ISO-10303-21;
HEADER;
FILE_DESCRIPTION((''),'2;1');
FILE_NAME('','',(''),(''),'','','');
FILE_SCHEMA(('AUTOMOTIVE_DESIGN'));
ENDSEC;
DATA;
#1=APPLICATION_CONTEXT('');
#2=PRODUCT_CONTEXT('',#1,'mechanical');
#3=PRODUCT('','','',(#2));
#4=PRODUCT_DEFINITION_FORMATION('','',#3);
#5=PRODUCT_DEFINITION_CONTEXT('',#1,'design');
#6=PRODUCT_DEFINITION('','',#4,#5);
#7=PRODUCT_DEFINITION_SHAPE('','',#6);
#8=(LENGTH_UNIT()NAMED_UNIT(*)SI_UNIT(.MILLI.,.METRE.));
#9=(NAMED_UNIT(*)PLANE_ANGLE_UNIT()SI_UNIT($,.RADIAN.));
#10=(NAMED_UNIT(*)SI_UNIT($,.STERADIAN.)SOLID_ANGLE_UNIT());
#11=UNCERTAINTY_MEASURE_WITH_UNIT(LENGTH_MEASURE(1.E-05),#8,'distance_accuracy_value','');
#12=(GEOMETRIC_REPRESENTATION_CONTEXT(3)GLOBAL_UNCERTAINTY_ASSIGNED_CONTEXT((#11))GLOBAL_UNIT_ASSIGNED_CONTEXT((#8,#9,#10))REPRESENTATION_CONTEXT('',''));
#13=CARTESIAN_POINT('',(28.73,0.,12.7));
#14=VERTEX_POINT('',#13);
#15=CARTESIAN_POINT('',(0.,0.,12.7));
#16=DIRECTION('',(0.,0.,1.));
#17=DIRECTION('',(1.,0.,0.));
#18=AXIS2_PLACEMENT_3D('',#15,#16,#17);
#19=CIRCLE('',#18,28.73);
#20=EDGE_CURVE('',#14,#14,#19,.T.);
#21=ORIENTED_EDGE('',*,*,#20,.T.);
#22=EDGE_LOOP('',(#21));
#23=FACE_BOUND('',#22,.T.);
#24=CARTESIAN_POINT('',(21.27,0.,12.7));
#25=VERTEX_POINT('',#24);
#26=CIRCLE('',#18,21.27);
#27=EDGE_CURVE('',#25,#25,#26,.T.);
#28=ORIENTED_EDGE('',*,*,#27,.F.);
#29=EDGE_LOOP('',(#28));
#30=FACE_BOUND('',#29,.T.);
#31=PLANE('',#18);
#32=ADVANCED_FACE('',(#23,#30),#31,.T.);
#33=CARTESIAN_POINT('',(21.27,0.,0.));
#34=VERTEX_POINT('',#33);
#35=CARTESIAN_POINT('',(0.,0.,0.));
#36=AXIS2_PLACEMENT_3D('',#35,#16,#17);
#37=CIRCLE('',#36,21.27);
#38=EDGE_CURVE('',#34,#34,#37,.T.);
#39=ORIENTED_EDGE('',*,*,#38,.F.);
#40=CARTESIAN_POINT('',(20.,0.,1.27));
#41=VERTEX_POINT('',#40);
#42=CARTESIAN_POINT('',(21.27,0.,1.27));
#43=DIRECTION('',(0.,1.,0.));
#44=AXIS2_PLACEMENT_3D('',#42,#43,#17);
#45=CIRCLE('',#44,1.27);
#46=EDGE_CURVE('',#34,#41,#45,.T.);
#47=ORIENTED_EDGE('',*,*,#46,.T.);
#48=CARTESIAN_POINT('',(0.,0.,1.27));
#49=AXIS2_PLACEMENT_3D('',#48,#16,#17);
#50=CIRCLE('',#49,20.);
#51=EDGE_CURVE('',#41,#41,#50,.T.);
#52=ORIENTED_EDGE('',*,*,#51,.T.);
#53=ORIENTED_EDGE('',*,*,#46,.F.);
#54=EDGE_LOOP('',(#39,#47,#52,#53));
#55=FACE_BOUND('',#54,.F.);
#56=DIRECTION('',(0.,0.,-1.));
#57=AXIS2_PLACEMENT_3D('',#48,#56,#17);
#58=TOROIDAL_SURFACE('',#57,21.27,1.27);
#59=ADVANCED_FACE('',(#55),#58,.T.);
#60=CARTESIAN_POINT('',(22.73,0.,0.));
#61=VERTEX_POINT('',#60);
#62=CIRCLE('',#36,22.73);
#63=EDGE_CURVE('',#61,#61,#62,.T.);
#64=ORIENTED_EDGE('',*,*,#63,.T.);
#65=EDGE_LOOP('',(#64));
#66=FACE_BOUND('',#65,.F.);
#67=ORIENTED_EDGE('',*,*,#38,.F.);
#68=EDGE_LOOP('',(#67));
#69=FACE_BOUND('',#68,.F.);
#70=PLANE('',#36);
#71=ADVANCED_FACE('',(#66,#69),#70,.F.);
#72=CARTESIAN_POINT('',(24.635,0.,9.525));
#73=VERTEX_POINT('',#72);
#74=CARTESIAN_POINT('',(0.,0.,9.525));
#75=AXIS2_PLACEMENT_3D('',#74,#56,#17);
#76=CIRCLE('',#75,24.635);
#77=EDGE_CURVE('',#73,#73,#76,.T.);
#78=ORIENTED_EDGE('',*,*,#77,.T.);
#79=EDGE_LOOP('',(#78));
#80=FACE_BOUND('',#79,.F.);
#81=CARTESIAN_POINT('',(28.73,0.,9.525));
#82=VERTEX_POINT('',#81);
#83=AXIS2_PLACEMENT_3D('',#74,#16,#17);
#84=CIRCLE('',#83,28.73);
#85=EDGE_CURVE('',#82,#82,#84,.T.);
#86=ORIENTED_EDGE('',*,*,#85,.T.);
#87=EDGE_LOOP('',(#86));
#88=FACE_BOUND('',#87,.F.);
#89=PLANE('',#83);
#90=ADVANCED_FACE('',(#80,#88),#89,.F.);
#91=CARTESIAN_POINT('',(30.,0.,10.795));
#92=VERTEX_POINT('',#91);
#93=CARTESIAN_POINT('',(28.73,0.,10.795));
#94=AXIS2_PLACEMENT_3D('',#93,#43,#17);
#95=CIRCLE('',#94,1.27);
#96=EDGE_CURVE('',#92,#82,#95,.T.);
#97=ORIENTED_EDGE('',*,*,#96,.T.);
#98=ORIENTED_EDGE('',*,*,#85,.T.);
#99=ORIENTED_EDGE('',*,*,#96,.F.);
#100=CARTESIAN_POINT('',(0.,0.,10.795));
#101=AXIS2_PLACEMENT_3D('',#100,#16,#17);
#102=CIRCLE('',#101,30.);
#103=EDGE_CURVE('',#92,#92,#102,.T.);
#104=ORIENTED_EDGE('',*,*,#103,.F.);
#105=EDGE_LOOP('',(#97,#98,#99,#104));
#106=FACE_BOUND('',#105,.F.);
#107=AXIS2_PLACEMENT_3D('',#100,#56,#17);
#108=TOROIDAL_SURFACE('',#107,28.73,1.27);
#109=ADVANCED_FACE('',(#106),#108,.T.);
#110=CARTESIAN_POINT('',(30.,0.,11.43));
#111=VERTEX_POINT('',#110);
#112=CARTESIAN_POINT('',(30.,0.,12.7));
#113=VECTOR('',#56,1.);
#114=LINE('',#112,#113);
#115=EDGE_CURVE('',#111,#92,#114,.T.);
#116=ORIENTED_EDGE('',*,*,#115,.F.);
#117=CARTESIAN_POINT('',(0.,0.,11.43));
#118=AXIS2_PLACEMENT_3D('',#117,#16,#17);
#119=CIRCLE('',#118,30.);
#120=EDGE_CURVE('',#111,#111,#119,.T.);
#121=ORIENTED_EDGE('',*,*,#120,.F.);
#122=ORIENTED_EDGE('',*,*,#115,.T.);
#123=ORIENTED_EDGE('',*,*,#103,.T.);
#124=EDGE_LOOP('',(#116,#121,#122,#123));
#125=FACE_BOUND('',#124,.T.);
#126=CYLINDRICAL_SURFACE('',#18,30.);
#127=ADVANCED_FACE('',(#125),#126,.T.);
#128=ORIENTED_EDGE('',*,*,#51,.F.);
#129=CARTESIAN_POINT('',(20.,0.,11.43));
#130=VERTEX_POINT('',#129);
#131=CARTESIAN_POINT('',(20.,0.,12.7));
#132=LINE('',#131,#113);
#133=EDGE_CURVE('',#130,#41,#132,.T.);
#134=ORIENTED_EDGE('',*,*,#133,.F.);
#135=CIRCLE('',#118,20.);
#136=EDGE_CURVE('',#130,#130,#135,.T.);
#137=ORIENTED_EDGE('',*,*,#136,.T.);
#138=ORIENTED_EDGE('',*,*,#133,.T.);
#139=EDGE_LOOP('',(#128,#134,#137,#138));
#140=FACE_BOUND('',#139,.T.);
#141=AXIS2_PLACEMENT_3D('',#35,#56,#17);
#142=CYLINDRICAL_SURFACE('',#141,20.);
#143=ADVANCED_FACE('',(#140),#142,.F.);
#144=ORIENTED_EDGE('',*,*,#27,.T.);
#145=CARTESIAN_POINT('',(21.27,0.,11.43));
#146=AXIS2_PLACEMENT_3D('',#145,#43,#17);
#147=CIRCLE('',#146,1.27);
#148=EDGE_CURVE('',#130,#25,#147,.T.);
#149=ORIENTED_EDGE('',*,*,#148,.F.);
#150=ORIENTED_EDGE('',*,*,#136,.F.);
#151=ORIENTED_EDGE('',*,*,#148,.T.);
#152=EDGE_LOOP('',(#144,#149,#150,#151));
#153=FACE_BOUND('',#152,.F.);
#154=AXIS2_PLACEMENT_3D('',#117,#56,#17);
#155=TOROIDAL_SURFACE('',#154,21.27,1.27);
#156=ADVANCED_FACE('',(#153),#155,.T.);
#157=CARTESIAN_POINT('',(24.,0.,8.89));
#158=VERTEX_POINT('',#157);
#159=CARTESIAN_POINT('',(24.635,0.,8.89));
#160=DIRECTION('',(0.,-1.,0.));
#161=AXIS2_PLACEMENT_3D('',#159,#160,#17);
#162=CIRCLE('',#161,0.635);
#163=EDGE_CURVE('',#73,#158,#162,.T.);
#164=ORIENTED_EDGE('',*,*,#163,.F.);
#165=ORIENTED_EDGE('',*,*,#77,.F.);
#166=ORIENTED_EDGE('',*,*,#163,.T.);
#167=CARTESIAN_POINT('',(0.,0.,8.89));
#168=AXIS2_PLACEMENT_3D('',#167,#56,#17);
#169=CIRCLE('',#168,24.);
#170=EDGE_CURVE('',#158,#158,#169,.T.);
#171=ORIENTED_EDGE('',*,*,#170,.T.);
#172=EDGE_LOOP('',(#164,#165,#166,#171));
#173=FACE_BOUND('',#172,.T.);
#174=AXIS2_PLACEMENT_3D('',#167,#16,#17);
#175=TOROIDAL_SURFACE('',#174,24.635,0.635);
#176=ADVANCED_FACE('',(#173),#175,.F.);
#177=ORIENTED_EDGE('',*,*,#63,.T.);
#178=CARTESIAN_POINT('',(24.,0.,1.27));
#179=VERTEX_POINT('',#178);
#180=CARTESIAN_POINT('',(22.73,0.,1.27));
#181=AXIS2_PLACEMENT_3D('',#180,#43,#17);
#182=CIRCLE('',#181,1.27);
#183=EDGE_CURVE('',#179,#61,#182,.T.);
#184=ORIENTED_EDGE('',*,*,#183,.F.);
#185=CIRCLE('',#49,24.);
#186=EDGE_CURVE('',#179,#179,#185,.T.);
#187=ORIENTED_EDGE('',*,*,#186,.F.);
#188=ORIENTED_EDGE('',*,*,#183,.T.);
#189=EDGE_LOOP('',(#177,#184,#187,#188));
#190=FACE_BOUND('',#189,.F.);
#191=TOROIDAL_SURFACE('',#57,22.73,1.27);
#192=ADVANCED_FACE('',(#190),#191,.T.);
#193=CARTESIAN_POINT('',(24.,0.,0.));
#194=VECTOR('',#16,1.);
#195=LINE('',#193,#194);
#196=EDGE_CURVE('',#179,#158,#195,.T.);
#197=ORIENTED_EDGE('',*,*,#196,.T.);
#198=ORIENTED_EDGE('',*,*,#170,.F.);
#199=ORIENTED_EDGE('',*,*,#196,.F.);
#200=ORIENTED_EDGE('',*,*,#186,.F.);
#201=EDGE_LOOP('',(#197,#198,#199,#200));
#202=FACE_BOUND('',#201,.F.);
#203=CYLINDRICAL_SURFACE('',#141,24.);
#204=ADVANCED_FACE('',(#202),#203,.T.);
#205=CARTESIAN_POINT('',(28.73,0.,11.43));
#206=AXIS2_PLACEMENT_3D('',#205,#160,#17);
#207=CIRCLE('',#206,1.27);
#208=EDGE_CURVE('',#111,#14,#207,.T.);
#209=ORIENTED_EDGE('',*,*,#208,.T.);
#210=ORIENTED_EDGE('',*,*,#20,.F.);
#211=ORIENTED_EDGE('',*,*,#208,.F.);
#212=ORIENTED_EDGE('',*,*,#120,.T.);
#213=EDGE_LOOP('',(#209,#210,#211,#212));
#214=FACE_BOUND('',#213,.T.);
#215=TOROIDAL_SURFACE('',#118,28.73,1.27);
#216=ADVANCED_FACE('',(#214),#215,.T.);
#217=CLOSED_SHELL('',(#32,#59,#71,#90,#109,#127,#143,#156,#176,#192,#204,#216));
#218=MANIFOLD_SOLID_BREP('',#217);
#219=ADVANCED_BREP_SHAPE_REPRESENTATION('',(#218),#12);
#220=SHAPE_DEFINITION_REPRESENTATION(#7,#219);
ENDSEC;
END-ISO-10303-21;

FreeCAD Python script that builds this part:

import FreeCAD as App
import Part
import Sketcher
from FreeCAD import Vector
Q = App.Units.Quantity


def edges_at(feature, points):
    """Names of the edges that pass closest to the given points."""
    edges = feature.Shape.Edges
    near = lambda p: min(range(len(edges)), key=lambda i: edges[i].distToShape(Part.Vertex(*p))[0])
    return sorted({f"Edge{near(p) + 1}" for p in points})

doc = App.newDocument("Part")
body = doc.addObject("PartDesign::Body", "Body")

# Sketch on XY plane
sketch1 = body.newObject("Sketcher::SketchObject", "Sketch")
sketch1.AttachmentSupport = (doc.getObject("XY_Plane"), [""])
sketch1.MapMode = "FlatFace"
sketch1.addGeometry([
    Part.Circle(Vector(0, 0, 0), Vector(0, 0, 1), 24),
    Part.Circle(Vector(0, 0, 0), Vector(0, 0, 1), 20),
], False)
sketch1.addConstraint([
    Sketcher.Constraint("Coincident", 0, 3, -1, 1),
    Sketcher.Constraint("Coincident", 1, 3, -1, 1),
    Sketcher.Constraint("Diameter", 0, 48.0),
    Sketcher.Constraint("Diameter", 1, 40.0),
])
pad1 = body.newObject("PartDesign::Pad", "Pad")
pad1.Profile = sketch1
pad1.Length = Q("0.5 in")

# Sketch on XY plane
sketch2 = body.newObject("Sketcher::SketchObject", "Sketch001")
sketch2.AttachmentSupport = (doc.getObject("XY_Plane"), [""])
sketch2.MapMode = "FlatFace"
sketch2.AttachmentOffset = App.Placement(Vector(0, 0, 0.5 * 25.4), App.Rotation())
sketch2.addGeometry([
    Part.Circle(Vector(0, 0, 0), Vector(0, 0, 1), 30),
    Part.Circle(Vector(0, 0, 0), Vector(0, 0, 1), 20),
], False)
sketch2.addConstraint([
    Sketcher.Constraint("Coincident", 0, 3, -1, 1),
    Sketcher.Constraint("Coincident", 1, 3, -1, 1),
    Sketcher.Constraint("Diameter", 0, 60.0),
    Sketcher.Constraint("Diameter", 1, 40.0),
])
pad2 = body.newObject("PartDesign::Pad", "Pad001")
pad2.Profile = sketch2
pad2.Length = Q("0.125 in")
pad2.Reversed = True
doc.recompute()

fillet = body.newObject("PartDesign::Fillet", "Fillet")
fillet.Base = (pad2, edges_at(pad2, [
    (-20, 0, 12.7),
    (-20, 0, 0),
    (-30, 0, 12.7),
    (-30, 0, 9.525),
    (-24, 0, 0),
]))
fillet.Radius = Q("0.05 in")
doc.recompute()

fillet2 = body.newObject("PartDesign::Fillet", "Fillet001")
fillet2.Base = (fillet, edges_at(fillet, [(-24, 0, 9.525)]))
fillet2.Radius = Q("0.025 in")

doc.recompute()
